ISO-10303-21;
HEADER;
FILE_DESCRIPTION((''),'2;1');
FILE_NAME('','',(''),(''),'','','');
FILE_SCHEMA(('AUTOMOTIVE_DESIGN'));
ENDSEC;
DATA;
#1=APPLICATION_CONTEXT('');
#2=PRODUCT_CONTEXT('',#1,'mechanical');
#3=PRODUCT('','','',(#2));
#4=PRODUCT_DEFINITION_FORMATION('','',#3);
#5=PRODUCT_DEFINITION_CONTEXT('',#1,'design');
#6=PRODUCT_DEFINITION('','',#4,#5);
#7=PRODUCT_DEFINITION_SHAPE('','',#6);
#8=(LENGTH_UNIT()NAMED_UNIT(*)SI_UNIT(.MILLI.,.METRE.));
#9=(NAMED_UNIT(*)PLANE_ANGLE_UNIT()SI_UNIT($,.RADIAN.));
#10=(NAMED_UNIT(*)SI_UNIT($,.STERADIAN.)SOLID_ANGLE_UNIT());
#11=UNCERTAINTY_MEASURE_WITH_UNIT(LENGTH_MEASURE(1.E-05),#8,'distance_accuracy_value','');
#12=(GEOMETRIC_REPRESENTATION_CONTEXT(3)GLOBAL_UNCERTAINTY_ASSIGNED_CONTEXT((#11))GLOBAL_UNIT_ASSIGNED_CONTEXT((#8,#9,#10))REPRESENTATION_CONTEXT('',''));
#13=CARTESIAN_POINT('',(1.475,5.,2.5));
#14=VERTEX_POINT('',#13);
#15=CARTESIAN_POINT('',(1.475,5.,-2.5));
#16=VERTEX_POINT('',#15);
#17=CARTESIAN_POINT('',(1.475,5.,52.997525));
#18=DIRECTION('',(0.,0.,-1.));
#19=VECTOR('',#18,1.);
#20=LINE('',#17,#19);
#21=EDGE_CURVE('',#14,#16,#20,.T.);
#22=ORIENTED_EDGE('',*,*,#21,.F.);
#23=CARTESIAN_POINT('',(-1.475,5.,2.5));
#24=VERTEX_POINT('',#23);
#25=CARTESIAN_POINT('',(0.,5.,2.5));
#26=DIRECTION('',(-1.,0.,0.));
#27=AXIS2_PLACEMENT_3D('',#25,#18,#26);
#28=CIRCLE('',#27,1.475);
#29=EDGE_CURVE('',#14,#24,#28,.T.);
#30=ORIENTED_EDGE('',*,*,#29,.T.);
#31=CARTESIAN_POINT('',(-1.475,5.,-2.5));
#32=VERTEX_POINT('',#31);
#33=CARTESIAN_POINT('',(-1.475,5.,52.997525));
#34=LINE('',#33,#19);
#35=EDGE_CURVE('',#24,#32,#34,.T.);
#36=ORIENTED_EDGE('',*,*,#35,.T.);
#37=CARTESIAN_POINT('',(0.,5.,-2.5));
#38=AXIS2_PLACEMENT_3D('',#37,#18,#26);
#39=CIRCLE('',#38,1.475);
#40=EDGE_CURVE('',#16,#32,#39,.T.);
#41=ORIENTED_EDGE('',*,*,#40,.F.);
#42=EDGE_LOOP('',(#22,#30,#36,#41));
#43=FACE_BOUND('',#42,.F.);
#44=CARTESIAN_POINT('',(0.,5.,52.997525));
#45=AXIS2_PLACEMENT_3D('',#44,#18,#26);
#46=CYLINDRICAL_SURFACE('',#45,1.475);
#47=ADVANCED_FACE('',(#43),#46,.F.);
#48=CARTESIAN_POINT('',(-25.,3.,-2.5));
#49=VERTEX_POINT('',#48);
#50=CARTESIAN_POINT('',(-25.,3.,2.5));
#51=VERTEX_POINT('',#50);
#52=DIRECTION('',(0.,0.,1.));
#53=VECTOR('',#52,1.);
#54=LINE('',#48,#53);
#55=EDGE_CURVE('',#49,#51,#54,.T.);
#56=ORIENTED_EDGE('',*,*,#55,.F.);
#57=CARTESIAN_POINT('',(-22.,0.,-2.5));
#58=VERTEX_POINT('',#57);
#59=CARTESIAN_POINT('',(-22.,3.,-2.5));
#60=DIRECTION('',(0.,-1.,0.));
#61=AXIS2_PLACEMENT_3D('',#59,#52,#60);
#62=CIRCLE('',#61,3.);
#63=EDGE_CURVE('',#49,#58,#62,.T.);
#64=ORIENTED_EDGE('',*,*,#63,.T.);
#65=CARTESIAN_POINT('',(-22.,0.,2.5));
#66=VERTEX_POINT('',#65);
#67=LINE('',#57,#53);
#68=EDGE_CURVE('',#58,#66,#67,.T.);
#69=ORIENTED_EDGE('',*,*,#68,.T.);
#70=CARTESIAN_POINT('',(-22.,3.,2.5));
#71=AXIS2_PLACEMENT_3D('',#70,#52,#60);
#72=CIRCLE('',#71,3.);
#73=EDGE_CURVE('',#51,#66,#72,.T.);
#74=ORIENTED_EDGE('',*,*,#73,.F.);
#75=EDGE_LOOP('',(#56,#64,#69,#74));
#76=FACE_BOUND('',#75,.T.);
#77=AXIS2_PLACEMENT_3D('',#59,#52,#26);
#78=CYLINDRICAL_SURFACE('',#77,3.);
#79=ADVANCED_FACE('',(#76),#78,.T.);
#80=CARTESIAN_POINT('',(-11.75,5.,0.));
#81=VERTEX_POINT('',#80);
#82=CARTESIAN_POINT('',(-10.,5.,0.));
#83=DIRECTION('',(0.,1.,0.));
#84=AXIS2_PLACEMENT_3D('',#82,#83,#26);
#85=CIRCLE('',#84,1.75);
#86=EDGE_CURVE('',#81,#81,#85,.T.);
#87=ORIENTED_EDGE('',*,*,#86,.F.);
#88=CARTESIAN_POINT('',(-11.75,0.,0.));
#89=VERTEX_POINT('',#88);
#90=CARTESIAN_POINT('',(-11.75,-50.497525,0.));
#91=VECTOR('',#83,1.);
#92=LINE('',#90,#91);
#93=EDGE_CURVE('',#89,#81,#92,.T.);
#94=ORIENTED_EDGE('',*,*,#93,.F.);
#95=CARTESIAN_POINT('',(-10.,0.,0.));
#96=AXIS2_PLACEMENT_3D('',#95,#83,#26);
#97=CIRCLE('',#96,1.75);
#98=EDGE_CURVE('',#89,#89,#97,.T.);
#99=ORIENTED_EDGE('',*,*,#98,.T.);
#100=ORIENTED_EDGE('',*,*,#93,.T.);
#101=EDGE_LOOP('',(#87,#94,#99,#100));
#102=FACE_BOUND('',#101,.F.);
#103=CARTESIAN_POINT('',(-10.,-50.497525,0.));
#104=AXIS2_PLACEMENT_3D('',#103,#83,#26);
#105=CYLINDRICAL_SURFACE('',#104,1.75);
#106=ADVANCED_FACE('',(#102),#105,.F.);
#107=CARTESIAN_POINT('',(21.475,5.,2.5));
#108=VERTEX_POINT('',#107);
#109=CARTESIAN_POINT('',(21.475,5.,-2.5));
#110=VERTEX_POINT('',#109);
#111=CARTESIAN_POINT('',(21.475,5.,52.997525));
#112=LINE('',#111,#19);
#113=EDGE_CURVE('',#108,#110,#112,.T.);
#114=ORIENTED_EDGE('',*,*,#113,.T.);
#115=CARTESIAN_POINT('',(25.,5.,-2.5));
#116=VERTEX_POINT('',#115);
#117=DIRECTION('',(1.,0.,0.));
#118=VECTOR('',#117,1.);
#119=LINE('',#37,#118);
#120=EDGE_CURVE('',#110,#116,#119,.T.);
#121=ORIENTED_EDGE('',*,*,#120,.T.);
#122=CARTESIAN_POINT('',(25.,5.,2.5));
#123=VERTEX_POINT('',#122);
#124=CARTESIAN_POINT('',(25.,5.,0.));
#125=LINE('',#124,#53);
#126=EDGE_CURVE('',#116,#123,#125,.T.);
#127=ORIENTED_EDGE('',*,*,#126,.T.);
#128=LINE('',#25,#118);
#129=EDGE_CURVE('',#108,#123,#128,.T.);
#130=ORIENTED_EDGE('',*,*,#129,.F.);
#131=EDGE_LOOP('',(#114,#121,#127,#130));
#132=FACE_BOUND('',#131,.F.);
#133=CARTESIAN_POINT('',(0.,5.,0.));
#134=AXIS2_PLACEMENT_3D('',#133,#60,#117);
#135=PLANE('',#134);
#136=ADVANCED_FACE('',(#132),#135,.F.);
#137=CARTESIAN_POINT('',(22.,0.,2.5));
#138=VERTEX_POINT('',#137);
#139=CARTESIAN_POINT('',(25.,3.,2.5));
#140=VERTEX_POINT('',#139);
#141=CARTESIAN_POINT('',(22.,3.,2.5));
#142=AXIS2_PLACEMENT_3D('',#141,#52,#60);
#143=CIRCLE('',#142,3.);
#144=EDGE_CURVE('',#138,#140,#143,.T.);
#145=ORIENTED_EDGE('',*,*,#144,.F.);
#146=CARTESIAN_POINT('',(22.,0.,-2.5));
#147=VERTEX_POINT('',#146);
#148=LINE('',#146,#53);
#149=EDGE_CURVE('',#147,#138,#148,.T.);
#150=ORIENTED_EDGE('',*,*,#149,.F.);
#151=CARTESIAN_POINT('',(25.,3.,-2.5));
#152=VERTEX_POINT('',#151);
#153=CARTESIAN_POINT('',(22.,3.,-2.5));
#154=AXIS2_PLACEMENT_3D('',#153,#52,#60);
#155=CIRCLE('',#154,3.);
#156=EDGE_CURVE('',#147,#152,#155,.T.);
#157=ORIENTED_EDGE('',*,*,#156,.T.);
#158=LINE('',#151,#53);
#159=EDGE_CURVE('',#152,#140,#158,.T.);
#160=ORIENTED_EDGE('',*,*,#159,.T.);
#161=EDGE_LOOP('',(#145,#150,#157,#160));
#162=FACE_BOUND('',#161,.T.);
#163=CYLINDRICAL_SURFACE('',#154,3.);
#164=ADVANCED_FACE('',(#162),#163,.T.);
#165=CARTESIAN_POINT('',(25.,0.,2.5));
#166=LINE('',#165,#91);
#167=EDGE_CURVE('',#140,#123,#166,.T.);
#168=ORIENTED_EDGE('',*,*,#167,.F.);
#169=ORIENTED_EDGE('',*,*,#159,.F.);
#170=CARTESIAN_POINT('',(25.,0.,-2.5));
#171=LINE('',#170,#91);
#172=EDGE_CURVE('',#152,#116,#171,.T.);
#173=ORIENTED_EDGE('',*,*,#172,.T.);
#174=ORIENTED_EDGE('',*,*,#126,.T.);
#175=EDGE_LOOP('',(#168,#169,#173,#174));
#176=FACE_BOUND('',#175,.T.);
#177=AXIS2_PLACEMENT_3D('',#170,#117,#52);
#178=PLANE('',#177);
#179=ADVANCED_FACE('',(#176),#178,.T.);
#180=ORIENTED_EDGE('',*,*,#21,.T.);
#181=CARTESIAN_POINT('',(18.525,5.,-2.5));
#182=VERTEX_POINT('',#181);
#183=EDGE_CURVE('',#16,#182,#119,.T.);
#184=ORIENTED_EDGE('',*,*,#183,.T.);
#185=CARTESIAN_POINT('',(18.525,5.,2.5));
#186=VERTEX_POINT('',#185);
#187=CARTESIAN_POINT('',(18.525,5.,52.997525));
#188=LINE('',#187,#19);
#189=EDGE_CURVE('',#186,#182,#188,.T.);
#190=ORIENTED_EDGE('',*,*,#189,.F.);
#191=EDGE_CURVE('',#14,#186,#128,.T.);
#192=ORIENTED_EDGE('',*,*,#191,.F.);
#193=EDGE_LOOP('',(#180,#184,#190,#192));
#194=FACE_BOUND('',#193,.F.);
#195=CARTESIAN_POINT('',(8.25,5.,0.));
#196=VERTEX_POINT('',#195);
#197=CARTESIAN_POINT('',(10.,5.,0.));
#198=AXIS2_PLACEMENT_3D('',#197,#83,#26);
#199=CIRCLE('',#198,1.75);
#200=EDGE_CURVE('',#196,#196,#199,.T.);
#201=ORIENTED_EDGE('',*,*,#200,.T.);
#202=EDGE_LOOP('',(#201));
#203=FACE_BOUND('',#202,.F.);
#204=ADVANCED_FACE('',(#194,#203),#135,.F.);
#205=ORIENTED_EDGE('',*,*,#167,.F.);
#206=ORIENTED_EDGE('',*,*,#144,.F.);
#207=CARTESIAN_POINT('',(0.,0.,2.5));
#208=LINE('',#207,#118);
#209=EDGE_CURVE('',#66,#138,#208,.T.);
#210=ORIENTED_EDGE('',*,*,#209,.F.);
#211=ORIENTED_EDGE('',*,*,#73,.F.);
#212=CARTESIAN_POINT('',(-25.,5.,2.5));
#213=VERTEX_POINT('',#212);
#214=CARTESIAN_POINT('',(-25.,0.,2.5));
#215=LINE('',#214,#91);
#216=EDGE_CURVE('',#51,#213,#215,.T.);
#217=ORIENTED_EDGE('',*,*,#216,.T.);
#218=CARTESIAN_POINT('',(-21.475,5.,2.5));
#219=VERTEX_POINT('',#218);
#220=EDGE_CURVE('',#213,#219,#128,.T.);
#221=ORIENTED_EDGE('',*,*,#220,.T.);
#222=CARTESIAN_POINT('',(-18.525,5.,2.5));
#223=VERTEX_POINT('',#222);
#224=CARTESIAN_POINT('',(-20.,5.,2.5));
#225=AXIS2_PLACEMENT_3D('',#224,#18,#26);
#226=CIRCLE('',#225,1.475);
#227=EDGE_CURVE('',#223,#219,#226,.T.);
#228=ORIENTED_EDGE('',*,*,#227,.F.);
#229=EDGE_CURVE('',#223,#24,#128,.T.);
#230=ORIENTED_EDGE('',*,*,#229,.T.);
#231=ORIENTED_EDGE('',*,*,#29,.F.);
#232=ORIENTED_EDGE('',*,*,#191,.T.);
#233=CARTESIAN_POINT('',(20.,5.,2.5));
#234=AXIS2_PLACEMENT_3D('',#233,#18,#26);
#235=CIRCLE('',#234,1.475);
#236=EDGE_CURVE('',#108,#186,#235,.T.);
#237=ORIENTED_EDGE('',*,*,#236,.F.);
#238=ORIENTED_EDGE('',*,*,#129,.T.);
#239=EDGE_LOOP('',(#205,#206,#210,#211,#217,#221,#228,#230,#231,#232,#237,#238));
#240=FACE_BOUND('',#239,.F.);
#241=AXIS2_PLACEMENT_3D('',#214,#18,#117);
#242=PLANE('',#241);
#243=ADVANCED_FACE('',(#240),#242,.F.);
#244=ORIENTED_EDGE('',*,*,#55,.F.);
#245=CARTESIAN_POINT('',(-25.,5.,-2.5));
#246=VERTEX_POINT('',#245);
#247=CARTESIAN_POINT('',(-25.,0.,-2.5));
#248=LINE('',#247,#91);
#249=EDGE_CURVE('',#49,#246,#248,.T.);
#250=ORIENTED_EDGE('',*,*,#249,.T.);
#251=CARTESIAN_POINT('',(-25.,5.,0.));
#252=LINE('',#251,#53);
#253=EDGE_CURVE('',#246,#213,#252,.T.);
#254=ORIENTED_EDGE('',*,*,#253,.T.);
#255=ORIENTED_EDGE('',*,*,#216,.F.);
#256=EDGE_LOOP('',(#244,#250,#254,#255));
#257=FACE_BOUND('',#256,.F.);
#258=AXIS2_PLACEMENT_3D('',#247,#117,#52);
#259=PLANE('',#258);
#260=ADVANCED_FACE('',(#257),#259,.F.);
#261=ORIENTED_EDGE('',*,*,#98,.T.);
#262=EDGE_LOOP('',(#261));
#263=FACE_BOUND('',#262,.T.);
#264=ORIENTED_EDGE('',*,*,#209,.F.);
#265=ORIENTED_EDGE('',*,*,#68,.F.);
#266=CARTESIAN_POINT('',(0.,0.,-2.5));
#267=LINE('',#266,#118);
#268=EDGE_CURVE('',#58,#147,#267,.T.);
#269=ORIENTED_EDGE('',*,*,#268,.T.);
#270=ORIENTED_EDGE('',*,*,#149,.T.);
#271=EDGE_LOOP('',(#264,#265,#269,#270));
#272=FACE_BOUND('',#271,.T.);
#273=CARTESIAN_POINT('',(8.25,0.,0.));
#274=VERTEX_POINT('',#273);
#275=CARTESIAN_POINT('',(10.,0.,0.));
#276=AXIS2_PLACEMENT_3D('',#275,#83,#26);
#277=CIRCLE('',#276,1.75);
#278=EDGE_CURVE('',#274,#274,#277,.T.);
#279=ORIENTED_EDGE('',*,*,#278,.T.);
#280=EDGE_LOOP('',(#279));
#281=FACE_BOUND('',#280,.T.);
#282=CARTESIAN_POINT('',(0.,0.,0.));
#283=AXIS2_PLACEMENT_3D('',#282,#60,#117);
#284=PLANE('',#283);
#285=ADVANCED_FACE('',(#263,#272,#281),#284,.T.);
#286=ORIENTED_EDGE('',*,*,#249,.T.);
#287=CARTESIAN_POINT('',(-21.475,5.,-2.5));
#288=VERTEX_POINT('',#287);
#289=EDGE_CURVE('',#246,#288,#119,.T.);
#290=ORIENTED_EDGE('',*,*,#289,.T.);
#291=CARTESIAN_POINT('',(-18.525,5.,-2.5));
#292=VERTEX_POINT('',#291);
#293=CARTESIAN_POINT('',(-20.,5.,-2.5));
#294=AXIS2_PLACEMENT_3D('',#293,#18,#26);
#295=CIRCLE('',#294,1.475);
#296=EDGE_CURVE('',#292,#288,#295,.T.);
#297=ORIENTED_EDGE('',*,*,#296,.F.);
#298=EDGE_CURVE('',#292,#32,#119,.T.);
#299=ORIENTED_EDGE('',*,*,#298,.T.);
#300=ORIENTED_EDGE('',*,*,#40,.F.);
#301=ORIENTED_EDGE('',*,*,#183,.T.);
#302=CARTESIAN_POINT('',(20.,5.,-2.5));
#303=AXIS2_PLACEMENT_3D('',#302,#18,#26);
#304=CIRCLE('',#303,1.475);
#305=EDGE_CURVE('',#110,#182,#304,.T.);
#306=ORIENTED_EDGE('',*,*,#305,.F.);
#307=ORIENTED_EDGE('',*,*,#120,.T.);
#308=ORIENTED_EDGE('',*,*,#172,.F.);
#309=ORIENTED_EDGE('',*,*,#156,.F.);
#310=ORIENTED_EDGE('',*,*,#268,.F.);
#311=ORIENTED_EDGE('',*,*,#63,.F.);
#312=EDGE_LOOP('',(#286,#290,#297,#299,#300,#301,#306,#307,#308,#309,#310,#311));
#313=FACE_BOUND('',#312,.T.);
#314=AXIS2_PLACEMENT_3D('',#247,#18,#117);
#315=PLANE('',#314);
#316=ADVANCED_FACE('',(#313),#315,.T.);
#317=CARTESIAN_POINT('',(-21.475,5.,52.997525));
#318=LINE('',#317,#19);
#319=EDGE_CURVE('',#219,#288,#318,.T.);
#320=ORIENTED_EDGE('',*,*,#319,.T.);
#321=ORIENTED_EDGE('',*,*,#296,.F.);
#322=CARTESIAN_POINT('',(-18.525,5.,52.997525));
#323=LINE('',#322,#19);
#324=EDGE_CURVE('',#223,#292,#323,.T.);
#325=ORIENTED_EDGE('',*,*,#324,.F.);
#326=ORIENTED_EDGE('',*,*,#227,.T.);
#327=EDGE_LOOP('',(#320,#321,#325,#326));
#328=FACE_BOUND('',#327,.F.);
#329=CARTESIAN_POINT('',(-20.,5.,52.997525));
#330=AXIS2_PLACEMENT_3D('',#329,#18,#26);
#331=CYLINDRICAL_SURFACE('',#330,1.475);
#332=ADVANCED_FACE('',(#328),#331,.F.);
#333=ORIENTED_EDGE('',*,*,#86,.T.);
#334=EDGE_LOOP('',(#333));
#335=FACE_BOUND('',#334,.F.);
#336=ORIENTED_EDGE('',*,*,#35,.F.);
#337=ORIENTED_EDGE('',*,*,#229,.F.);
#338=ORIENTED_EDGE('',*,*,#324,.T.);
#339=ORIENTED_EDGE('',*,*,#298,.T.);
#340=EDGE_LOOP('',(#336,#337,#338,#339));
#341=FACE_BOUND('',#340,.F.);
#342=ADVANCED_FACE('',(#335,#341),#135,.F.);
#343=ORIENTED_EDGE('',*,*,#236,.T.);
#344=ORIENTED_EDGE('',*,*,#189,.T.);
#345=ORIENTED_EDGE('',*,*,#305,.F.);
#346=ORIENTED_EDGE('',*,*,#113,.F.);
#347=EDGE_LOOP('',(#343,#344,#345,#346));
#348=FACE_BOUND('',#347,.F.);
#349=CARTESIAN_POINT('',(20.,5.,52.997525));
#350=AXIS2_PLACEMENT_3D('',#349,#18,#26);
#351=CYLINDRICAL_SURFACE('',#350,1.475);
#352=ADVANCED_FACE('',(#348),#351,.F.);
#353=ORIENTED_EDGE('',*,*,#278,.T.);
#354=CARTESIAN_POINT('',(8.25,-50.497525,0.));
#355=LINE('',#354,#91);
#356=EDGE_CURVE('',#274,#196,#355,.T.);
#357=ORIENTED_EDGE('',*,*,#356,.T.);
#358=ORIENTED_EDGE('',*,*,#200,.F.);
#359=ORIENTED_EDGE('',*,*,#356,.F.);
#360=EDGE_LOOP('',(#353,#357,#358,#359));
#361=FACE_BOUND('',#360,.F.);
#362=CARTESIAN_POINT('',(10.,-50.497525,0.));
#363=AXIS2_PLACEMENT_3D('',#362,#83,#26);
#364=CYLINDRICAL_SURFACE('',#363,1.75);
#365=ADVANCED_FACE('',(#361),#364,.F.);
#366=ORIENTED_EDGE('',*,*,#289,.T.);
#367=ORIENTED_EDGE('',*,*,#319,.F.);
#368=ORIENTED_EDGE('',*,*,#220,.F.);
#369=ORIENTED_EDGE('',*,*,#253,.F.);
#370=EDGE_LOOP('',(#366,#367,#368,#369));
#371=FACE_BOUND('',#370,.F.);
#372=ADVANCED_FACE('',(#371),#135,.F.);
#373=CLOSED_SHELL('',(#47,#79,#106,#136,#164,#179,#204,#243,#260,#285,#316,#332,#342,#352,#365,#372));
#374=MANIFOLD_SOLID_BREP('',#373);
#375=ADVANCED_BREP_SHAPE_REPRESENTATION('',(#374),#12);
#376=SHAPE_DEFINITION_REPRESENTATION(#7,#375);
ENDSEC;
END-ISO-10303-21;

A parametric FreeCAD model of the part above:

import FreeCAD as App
import Part
import Sketcher
Q = App.Units.Quantity


def edges_at(feature, points):
    """Names of the edges that pass closest to the given points."""
    edges = feature.Shape.Edges
    near = lambda p: min(range(len(edges)), key=lambda i: edges[i].distToShape(Part.Vertex(*p))[0])
    return sorted({f"Edge{near(p) + 1}" for p in points})


def add_polygon(sketch, points):
    """Adds a closed chain of lines whose ends are joined by coincident constraints."""
    first, n = sketch.GeometryCount, len(points)
    for a, b in zip(points, points[1:] + points[:1]):
        sketch.addGeometry(Part.LineSegment(App.Vector(*a, 0), App.Vector(*b, 0)), False)
    for i in range(n):
        sketch.addConstraint(Sketcher.Constraint("Coincident", first + i, 2, first + (i + 1) % n, 1))

doc = App.newDocument("Part")
body = doc.addObject("PartDesign::Body", "Body")

sketch1 = body.newObject("Sketcher::SketchObject", "Sketch")
sketch1.AttachmentSupport = (doc.getObject("XZ_Plane"), [""])
sketch1.MapMode = "FlatFace"
add_polygon(sketch1, [(-25, 2), (-25, -2), (25, -2), (25, 2)])
sketch1.addConstraint([
    Sketcher.Constraint("Vertical", 0),
    Sketcher.Constraint("Horizontal", 1),
    Sketcher.Constraint("Vertical", 2),
    Sketcher.Constraint("Horizontal", 3),
    Sketcher.Constraint("Symmetric", 0, 2, 2, 2, -1, 1),
    Sketcher.Constraint("DistanceX", 1, 1, 1, 2, Q("50 mm")),
    Sketcher.Constraint("DistanceY", 0, 2, 0, 1, Q("5 mm")),
])
pad1 = body.newObject("PartDesign::Pad", "Pad")
pad1.Profile = sketch1
pad1.Length = 5
pad1.Reversed = True

sketch2 = body.newObject("Sketcher::SketchObject", "Sketch001")
sketch2.AttachmentSupport = (doc.getObject("XZ_Plane"), [""])
sketch2.MapMode = "FlatFace"
sketch2.addGeometry([
    Part.Circle(App.Vector(-10, 0, 0), App.Vector(0, 0, 1), 1.8),
    Part.Circle(App.Vector(10, 0, 0), App.Vector(0, 0, 1), 1.8),
], False)
sketch2.addConstraint([
    Sketcher.Constraint("Equal", 0, 1),
    Sketcher.Constraint("Symmetric", 0, 3, 1, 3, -1, 1),
    Sketcher.Constraint("PointOnObject", 0, 3, -1),
    Sketcher.Constraint("Diameter", 0, Q("3.5 mm")),
    Sketcher.Constraint("DistanceX", 0, 3, -1, 1, Q("10 mm")),
])
doc.recompute()
hole = body.newObject("PartDesign::Hole", "Hole")
hole.Profile = sketch2
hole.ThreadType = "None"
hole.Diameter = 3.5
hole.DepthType = "ThroughAll"
doc.recompute()

fillet = body.newObject("PartDesign::Fillet", "Fillet")
fillet.Base = (hole, edges_at(hole, [(-25, 0, 0), (25, 0, 0)]))
fillet.Radius = 3

sketch3 = body.newObject("Sketcher::SketchObject", "Sketch002")
sketch3.AttachmentSupport = (doc.getObject("XY_Plane"), [""])
sketch3.MapMode = "FlatFace"
sketch3.AttachmentOffset = App.Placement(App.Vector(0, 0, 2.5), App.Rotation())
sketch3.addGeometry([
    Part.Circle(App.Vector(-20, 5, 0), App.Vector(0, 0, 1), 1.5),
    Part.Circle(App.Vector(0, 5, 0), App.Vector(0, 0, 1), 1.5),
    Part.Circle(App.Vector(20, 5, 0), App.Vector(0, 0, 1), 1.5),
], False)
sketch3.addConstraint([
    Sketcher.Constraint("Equal", 0, 1),
    Sketcher.Constraint("Equal", 1, 2),
    Sketcher.Constraint("Symmetric", 0, 3, 2, 3, -2),
    Sketcher.Constraint("PointOnObject", 1, 3, -2),
    Sketcher.Constraint("Horizontal", 0, 3, 1, 3),
    Sketcher.Constraint("Diameter", 0, Q("2.95 mm")),
    Sketcher.Constraint("DistanceX", 0, 3, -1, 1, Q("20 mm")),
    Sketcher.Constraint("DistanceY", -1, 1, 0, 3, Q("5 mm")),
])
doc.recompute()
hole2 = body.newObject("PartDesign::Hole", "Hole001")
hole2.Profile = sketch3
hole2.ThreadType = "None"
hole2.Diameter = 2.95
hole2.DepthType = "ThroughAll"

doc.recompute()
